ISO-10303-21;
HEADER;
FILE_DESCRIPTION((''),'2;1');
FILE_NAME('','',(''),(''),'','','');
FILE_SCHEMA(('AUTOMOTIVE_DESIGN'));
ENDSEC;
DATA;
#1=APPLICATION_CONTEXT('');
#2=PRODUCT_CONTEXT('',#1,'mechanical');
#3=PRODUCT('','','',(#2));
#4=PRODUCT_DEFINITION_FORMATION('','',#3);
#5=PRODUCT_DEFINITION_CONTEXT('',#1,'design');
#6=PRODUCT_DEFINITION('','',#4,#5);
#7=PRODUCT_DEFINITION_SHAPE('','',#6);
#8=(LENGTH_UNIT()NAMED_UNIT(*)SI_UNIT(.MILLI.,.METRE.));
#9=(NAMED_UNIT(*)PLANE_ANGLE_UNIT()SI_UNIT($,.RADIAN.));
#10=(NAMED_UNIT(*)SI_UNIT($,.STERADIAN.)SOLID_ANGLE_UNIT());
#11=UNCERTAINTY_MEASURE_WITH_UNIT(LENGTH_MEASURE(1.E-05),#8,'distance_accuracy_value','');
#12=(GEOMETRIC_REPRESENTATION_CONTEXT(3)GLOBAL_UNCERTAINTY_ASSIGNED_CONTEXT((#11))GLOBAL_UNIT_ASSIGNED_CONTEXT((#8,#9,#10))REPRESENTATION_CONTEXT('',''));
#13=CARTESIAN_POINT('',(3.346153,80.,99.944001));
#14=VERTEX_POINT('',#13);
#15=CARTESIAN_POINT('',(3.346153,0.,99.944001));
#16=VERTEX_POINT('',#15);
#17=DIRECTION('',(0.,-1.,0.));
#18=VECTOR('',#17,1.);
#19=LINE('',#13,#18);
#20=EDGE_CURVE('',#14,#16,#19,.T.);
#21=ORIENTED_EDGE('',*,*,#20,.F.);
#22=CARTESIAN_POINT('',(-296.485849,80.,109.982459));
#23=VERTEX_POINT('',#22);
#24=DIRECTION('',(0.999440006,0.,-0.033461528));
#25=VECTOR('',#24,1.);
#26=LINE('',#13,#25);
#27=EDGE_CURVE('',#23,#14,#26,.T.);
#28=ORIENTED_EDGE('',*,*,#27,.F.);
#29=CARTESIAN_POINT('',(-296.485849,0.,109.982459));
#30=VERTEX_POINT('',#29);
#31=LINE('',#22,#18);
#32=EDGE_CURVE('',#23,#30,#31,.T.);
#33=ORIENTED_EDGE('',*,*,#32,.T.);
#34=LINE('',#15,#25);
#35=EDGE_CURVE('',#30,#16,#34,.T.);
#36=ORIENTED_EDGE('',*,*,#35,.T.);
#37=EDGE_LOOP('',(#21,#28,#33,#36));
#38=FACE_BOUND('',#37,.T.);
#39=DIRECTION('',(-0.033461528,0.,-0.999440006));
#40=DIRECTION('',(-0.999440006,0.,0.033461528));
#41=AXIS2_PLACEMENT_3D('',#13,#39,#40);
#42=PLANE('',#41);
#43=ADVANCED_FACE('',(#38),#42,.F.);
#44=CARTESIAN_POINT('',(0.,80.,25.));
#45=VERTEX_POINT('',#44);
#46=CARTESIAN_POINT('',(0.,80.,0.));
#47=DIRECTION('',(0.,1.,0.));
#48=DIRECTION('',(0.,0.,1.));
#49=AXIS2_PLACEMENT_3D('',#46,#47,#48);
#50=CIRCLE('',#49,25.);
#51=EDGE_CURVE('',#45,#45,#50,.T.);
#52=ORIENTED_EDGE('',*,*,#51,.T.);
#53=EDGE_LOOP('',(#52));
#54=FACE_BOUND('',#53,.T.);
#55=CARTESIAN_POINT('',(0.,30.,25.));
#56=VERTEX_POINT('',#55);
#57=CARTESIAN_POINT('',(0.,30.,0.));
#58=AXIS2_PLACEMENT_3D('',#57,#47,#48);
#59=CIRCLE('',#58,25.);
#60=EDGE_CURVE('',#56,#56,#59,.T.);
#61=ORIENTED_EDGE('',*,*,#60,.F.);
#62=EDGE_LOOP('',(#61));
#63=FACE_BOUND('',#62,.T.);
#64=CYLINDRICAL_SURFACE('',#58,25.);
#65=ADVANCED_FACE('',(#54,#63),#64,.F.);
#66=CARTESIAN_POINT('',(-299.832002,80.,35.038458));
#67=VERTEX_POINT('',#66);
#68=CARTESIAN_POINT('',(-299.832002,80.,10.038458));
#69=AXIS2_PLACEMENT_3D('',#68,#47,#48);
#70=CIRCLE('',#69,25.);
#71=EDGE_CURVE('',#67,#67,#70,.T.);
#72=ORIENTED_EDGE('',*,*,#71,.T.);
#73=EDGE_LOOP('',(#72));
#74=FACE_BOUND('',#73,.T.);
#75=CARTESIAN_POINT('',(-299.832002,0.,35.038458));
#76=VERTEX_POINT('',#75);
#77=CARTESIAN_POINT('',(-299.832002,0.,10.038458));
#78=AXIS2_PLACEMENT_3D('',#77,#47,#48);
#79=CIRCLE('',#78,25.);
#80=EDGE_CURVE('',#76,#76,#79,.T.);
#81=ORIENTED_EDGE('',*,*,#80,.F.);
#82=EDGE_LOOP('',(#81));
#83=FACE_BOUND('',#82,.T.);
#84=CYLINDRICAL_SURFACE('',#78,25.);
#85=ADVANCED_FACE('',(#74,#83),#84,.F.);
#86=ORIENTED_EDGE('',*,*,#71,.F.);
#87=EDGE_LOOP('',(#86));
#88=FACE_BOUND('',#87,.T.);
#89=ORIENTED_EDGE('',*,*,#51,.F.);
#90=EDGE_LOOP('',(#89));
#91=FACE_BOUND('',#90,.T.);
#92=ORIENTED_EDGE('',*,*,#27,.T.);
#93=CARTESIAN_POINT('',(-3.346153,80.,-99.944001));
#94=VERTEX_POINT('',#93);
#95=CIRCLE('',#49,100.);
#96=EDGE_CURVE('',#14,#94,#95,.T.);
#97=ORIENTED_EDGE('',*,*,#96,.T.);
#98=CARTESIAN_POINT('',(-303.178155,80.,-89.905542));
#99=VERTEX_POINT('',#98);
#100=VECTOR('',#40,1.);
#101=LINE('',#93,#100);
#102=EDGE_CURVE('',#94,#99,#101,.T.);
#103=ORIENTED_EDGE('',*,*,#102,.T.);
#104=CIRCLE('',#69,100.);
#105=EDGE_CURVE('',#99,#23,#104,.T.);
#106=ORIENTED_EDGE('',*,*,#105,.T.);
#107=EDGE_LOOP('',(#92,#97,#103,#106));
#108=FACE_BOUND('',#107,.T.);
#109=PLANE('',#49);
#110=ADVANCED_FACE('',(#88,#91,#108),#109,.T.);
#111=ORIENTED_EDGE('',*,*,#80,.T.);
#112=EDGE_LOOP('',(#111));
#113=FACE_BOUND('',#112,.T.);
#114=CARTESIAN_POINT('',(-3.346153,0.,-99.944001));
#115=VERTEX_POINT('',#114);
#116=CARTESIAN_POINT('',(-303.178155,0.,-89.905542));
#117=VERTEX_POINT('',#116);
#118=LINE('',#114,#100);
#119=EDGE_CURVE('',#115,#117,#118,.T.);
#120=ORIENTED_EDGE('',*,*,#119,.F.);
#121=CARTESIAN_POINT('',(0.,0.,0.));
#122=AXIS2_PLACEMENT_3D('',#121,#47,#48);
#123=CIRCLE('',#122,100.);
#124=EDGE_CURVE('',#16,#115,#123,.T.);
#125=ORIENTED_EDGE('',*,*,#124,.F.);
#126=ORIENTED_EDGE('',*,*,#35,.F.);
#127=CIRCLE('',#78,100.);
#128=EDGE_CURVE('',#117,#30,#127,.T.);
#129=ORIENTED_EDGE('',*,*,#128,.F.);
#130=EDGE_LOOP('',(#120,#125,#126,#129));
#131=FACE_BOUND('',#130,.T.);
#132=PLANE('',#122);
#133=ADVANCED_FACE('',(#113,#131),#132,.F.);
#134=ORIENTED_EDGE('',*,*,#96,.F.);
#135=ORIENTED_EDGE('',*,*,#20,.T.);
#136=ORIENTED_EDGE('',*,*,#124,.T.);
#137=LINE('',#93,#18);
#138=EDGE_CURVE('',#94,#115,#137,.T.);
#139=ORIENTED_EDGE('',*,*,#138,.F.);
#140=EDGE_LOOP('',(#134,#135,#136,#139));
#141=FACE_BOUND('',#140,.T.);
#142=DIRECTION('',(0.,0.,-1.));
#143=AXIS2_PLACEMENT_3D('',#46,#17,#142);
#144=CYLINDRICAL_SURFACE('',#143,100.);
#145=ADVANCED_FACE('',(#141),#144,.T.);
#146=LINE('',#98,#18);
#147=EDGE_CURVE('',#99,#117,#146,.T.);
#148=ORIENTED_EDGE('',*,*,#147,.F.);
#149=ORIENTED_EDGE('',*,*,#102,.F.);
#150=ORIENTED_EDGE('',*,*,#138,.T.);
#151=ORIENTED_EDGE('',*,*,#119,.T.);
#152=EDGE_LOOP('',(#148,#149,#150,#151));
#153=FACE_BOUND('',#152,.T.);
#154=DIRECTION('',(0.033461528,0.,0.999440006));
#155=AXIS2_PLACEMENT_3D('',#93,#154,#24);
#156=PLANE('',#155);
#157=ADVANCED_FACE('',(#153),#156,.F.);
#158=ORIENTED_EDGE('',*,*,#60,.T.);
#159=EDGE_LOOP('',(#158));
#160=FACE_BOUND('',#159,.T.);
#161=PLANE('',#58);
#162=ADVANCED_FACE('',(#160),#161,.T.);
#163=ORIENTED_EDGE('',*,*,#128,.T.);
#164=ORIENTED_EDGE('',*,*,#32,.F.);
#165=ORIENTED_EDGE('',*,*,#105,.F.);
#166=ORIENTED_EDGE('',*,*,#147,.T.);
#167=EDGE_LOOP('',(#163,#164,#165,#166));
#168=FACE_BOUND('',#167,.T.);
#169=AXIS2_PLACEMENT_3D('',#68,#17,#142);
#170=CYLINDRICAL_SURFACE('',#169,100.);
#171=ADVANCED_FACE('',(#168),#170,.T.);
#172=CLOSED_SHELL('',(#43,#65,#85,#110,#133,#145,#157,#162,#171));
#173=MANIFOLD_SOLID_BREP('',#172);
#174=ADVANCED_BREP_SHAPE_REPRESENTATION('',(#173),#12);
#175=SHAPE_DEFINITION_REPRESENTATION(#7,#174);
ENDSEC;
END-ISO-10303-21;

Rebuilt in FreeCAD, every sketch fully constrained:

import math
import FreeCAD as App
import Part
import Sketcher

V = App.Vector

doc = App.newDocument("Part")
params = doc.addObject("Spreadsheet::Sheet", "Params")
for row, (alias, value) in enumerate([
    ("sketch1_radius", "100 mm"),
    ("sketch1_length", "300 mm"),
    ("pad1_length", "80 mm"),
    ("sketch2_diameter", "50 mm"),
    ("pocket1_length", "50 mm"),
    ("sketch3_diameter", "50 mm"),
    ("pocket2_length", "80 mm"),
], start=1):
    params.set(f"A{row}", alias)
    params.set(f"B{row}", "=" + value)
    params.setAlias(f"B{row}", alias)

body = doc.addObject("PartDesign::Body", "Body")

# Sketch on XZ plane
sketch1 = body.newObject("Sketcher::SketchObject", "Sketch")
sketch1.AttachmentSupport = (doc.getObject("XZ_Plane"), [""])
sketch1.MapMode = "FlatFace"
sketch1.addGeometry([
    Part.LineSegment(V(-296, 110, 0), V(3, 100, 0)),
    Part.ArcOfCircle(Part.Circle(V(0, 0, 0), V(0, 0, 1), 100), math.radians(-92), math.radians(88)),
    Part.LineSegment(V(-3, -100, 0), V(-303, -90, 0)),
    Part.ArcOfCircle(Part.Circle(V(-300, 10, 0), V(0, 0, 1), 100), math.radians(88), math.radians(268)),
], False)
sketch1.addConstraint([
    Sketcher.Constraint("Tangent", 0, 2, 1, 2),
    Sketcher.Constraint("Tangent", 1, 1, 2, 1),
    Sketcher.Constraint("Tangent", 2, 2, 3, 2),
    Sketcher.Constraint("Tangent", 3, 1, 0, 1),
    Sketcher.Constraint("Coincident", 1, 3, -1, 1),
    Sketcher.Constraint("Equal", 1, 3),
    Sketcher.Constraint("Radius", 1, 100.0),
    Sketcher.Constraint("Distance", 0, 300.0),
    Sketcher.Constraint("DistanceX", 3, 3, -1, 1, 299.832002),
])
sketch1.setExpression("Constraints[6]", "Params.sketch1_radius")
sketch1.setExpression("Constraints[7]", "Params.sketch1_length")
pad1 = body.newObject("PartDesign::Pad", "Pad")
pad1.Profile = sketch1
pad1.setExpression("Length", "Params.pad1_length")
pad1.Reversed = True

# Sketch on XZ plane
sketch2 = body.newObject("Sketcher::SketchObject", "Sketch001")
sketch2.AttachmentSupport = (doc.getObject("XZ_Plane"), [""])
sketch2.MapMode = "FlatFace"
sketch2.AttachmentOffset = App.Placement(V(0, 0, -80), App.Rotation())
sketch2.addGeometry(Part.Circle(V(0, 0, 0), V(0, 0, 1), 25), False)
sketch2.addConstraint([
    Sketcher.Constraint("Coincident", 0, 3, -1, 1),
    Sketcher.Constraint("Diameter", 0, 50.0),
])
sketch2.setExpression("Constraints[1]", "Params.sketch2_diameter")
pocket1 = body.newObject("PartDesign::Pocket", "Pocket")
pocket1.Profile = sketch2
pocket1.setExpression("Length", "Params.pocket1_length")
pocket1.Reversed = True

# Sketch on XZ plane
sketch3 = body.newObject("Sketcher::SketchObject", "Sketch002")
sketch3.AttachmentSupport = (doc.getObject("XZ_Plane"), [""])
sketch3.MapMode = "FlatFace"
sketch3.AttachmentOffset = App.Placement(V(0, 0, -80), App.Rotation())
sketch3.addGeometry(Part.Circle(V(-300, 10, 0), V(0, 0, 1), 25), False)
sketch3.addConstraint([
    Sketcher.Constraint("Diameter", 0, 50.0),
    Sketcher.Constraint("DistanceX", 0, 3, -1, 1, 299.832002),
    Sketcher.Constraint("DistanceY", -1, 1, 0, 3, 10.038458),
])
sketch3.setExpression("Constraints[0]", "Params.sketch3_diameter")
pocket2 = body.newObject("PartDesign::Pocket", "Pocket001")
pocket2.Profile = sketch3
pocket2.setExpression("Length", "Params.pocket2_length")
pocket2.Reversed = True

doc.recompute()
